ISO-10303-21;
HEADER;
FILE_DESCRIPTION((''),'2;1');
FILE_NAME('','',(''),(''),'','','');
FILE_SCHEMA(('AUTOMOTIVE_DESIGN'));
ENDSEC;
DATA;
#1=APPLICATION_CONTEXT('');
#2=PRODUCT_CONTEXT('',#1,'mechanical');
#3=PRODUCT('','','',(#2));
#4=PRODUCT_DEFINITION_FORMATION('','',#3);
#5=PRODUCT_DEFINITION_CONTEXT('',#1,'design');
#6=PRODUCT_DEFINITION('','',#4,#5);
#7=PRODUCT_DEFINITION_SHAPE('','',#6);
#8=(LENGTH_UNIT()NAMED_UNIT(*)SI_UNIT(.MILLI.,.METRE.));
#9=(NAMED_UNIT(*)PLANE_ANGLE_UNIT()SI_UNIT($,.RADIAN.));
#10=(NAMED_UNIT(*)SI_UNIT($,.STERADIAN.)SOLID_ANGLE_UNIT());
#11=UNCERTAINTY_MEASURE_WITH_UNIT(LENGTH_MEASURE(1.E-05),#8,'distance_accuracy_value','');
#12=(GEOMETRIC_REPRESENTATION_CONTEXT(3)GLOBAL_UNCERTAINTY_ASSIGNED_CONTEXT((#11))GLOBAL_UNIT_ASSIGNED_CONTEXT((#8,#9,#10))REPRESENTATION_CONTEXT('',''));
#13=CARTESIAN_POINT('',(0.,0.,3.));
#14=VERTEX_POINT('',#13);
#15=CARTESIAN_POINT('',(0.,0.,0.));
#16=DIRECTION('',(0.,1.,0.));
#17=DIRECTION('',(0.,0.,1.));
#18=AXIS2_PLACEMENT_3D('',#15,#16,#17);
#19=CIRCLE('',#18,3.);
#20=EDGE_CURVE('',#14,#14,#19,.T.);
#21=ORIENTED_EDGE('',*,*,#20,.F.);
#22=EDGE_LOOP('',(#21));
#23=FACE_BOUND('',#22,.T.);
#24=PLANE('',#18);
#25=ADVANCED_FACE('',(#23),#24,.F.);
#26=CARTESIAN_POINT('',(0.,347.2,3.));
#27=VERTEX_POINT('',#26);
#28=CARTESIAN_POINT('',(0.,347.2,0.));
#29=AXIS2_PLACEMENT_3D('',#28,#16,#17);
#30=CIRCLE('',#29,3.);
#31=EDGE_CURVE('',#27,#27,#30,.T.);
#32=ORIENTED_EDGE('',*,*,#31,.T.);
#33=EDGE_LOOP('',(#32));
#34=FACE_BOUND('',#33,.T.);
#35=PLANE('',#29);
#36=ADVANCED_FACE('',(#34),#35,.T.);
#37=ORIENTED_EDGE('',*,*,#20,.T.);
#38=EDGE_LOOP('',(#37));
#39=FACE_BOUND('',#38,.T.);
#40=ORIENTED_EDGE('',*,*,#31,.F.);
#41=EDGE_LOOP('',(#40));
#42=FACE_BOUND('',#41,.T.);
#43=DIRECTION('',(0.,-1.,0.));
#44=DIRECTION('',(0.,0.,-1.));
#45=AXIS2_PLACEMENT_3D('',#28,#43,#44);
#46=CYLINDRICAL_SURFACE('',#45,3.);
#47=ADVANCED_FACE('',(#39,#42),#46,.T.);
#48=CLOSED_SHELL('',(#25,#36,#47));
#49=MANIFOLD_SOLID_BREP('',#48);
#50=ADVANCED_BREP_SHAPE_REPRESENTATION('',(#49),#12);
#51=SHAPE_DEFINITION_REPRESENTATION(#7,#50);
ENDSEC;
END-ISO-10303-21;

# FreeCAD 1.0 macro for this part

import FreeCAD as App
import Part
import Sketcher

doc = App.newDocument("Part")
params = doc.addObject("Spreadsheet::Sheet", "Params")
for row, (alias, value) in enumerate([
    ("sketch1_diameter", "6 mm"),
    ("pad1_length", "347.2 mm"),
], start=1):
    params.set(f"A{row}", alias)
    params.set(f"B{row}", "=" + value)
    params.setAlias(f"B{row}", alias)

body = doc.addObject("PartDesign::Body", "Body")

# Sketch on XZ plane
sketch1 = body.newObject("Sketcher::SketchObject", "Sketch")
sketch1.AttachmentSupport = (doc.getObject("XZ_Plane"), [""])
sketch1.MapMode = "FlatFace"
sketch1.addGeometry(Part.Circle(App.Vector(0, 0, 0), App.Vector(0, 0, 1), 3), False)
sketch1.addConstraint([
    Sketcher.Constraint("Coincident", 0, 3, -1, 1),
    Sketcher.Constraint("Diameter", 0, 6.0),
])
sketch1.setExpression("Constraints[1]", "Params.sketch1_diameter")
pad1 = body.newObject("PartDesign::Pad", "Pad")
pad1.Profile = sketch1
pad1.setExpression("Length", "Params.pad1_length")
pad1.Reversed = True

doc.recompute()
